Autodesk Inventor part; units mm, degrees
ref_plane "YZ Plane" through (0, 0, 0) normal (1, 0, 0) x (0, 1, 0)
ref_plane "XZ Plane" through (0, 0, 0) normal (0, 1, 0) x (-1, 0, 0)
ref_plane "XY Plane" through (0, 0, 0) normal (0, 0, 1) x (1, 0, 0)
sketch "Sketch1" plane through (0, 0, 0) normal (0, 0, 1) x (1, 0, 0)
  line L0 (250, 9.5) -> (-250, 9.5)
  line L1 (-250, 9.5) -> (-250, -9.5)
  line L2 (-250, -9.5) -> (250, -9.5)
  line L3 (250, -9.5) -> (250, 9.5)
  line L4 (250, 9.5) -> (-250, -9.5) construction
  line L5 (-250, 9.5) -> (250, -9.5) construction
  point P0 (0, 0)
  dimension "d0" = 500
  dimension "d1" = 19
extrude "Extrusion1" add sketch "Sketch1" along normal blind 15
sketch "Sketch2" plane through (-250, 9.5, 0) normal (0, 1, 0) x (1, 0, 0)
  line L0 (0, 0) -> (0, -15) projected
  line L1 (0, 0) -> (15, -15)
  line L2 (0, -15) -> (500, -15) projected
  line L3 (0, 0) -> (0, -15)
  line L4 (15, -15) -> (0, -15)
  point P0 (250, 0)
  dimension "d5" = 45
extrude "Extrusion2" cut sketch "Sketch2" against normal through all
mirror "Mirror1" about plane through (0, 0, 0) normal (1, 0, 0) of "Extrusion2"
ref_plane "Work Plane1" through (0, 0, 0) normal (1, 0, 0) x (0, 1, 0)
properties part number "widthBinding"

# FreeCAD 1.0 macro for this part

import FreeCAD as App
import Part
import Sketcher

doc = App.newDocument("Part")
body = doc.addObject("PartDesign::Body", "Body")

# Sketch on XY plane
sketch1 = body.newObject("Sketcher::SketchObject", "Sketch")
sketch1.AttachmentSupport = (doc.getObject("XY_Plane"), [""])
sketch1.MapMode = "FlatFace"
sketch1.addGeometry([
    Part.LineSegment(App.Vector(250, -10, 0), App.Vector(250, 10, 0)),
    Part.LineSegment(App.Vector(250, 10, 0), App.Vector(-250, 10, 0)),
    Part.LineSegment(App.Vector(-250, 10, 0), App.Vector(-250, -10, 0)),
    Part.LineSegment(App.Vector(-250, -10, 0), App.Vector(250, -10, 0)),
], False)
sketch1.addConstraint([
    Sketcher.Constraint("Coincident", 0, 2, 1, 1),
    Sketcher.Constraint("Coincident", 1, 2, 2, 1),
    Sketcher.Constraint("Coincident", 2, 2, 3, 1),
    Sketcher.Constraint("Coincident", 3, 2, 0, 1),
    Sketcher.Constraint("Vertical", 0),
    Sketcher.Constraint("Horizontal", 1),
    Sketcher.Constraint("Vertical", 2),
    Sketcher.Constraint("Horizontal", 3),
    Sketcher.Constraint("Symmetric", 0, 2, 2, 2, -1, 1),
    Sketcher.Constraint("DistanceX", 1, 2, 1, 1, 500.0),
    Sketcher.Constraint("DistanceY", 0, 1, 0, 2, 19.0),
])
pad1 = body.newObject("PartDesign::Pad", "Pad")
pad1.Profile = sketch1
pad1.Length = 15

# Sketch on XZ plane
sketch2 = body.newObject("Sketcher::SketchObject", "Sketch001")
sketch2.AttachmentSupport = (doc.getObject("XZ_Plane"), [""])
sketch2.MapMode = "FlatFace"
sketch2.AttachmentOffset = App.Placement(App.Vector(0, 0, -9.5), App.Rotation())
sketch2.addGeometry([
    Part.LineSegment(App.Vector(-235, 15, 0), App.Vector(-250, 0, 0)),
    Part.LineSegment(App.Vector(-250, 0, 0), App.Vector(-250, 15, 0)),
    Part.LineSegment(App.Vector(-250, 15, 0), App.Vector(-235, 15, 0)),
], False)
sketch2.addConstraint([
    Sketcher.Constraint("Coincident", 0, 2, 1, 1),
    Sketcher.Constraint("Coincident", 1, 2, 2, 1),
    Sketcher.Constraint("Coincident", 2, 2, 0, 1),
    Sketcher.Constraint("Vertical", 1),
    Sketcher.Constraint("Horizontal", 2),
    Sketcher.Constraint("PointOnObject", 0, 2, -1),
    Sketcher.Constraint("Equal", 2, 1),
    Sketcher.Constraint("DistanceX", 2, 1, 2, 2, 15.0),
    Sketcher.Constraint("DistanceX", 0, 2, -1, 1, 250.0),
])
pocket1 = body.newObject("PartDesign::Pocket", "Pocket")
pocket1.Profile = sketch2
pocket1.Type = "ThroughAll"
pocket1.Reversed = True
doc.recompute()

mirrored = body.newObject("PartDesign::Mirrored", "Mirrored")
mirrored.Originals = [pocket1]
mirrored.MirrorPlane = (doc.getObject("YZ_Plane"), [""])
body.Tip = mirrored

doc.recompute()
